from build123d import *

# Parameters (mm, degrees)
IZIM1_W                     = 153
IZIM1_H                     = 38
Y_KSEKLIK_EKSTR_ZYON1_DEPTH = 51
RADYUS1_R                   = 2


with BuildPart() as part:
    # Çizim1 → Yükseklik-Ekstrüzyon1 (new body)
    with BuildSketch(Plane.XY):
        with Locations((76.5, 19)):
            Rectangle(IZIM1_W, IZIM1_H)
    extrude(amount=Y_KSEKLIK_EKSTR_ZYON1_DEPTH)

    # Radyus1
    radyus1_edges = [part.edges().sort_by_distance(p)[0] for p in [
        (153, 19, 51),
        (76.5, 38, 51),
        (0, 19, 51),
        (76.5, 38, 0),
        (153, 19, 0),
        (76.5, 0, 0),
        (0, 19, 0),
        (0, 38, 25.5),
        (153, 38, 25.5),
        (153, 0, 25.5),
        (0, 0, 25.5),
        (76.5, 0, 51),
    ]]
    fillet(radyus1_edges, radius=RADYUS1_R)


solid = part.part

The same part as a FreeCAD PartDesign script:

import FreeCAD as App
import Part
import Sketcher
from FreeCAD import Vector

doc = App.newDocument("Part")
body = doc.addObject("PartDesign::Body", "Body")

sketch1 = doc.addObject("Sketcher::SketchObject", "Sketch")
body.addObject(sketch1)
sketch1.AttachmentSupport = (doc.XY_Plane, [""])
sketch1.MapMode = "FlatFace"
sketch1.addGeometry([
    Part.LineSegment(Vector(0, 38, 0), Vector(0, 0, 0)),
    Part.LineSegment(Vector(0, 0, 0), Vector(153, 0, 0)),
    Part.LineSegment(Vector(153, 0, 0), Vector(153, 38, 0)),
    Part.LineSegment(Vector(153, 38, 0), Vector(0, 38, 0)),
], False)
sketch1.addConstraint([
    Sketcher.Constraint("Coincident", 0, 2, 1, 1),
    Sketcher.Constraint("Coincident", 1, 2, 2, 1),
    Sketcher.Constraint("Coincident", 2, 2, 3, 1),
    Sketcher.Constraint("Coincident", 3, 2, 0, 1),
    Sketcher.Constraint("Vertical", 0),
    Sketcher.Constraint("Horizontal", 1),
    Sketcher.Constraint("Vertical", 2),
    Sketcher.Constraint("Horizontal", 3),
    Sketcher.Constraint("Coincident", 0, 2, -1, 1),
    Sketcher.Constraint("DistanceX", 1, 1, 1, 2, 153.0),
    Sketcher.Constraint("DistanceY", 0, 2, 0, 1, 38.0),
])
pad1 = doc.addObject("PartDesign::Pad", "Pad")
body.addObject(pad1)
pad1.Profile = sketch1
pad1.Length = 51
doc.recompute()

fillet = doc.addObject("PartDesign::Fillet", "Fillet")
body.addObject(fillet)
fillet.Base = (pad1, ["Edge1"])
fillet.UseAllEdges = True
fillet.Radius = 2

doc.recompute()
